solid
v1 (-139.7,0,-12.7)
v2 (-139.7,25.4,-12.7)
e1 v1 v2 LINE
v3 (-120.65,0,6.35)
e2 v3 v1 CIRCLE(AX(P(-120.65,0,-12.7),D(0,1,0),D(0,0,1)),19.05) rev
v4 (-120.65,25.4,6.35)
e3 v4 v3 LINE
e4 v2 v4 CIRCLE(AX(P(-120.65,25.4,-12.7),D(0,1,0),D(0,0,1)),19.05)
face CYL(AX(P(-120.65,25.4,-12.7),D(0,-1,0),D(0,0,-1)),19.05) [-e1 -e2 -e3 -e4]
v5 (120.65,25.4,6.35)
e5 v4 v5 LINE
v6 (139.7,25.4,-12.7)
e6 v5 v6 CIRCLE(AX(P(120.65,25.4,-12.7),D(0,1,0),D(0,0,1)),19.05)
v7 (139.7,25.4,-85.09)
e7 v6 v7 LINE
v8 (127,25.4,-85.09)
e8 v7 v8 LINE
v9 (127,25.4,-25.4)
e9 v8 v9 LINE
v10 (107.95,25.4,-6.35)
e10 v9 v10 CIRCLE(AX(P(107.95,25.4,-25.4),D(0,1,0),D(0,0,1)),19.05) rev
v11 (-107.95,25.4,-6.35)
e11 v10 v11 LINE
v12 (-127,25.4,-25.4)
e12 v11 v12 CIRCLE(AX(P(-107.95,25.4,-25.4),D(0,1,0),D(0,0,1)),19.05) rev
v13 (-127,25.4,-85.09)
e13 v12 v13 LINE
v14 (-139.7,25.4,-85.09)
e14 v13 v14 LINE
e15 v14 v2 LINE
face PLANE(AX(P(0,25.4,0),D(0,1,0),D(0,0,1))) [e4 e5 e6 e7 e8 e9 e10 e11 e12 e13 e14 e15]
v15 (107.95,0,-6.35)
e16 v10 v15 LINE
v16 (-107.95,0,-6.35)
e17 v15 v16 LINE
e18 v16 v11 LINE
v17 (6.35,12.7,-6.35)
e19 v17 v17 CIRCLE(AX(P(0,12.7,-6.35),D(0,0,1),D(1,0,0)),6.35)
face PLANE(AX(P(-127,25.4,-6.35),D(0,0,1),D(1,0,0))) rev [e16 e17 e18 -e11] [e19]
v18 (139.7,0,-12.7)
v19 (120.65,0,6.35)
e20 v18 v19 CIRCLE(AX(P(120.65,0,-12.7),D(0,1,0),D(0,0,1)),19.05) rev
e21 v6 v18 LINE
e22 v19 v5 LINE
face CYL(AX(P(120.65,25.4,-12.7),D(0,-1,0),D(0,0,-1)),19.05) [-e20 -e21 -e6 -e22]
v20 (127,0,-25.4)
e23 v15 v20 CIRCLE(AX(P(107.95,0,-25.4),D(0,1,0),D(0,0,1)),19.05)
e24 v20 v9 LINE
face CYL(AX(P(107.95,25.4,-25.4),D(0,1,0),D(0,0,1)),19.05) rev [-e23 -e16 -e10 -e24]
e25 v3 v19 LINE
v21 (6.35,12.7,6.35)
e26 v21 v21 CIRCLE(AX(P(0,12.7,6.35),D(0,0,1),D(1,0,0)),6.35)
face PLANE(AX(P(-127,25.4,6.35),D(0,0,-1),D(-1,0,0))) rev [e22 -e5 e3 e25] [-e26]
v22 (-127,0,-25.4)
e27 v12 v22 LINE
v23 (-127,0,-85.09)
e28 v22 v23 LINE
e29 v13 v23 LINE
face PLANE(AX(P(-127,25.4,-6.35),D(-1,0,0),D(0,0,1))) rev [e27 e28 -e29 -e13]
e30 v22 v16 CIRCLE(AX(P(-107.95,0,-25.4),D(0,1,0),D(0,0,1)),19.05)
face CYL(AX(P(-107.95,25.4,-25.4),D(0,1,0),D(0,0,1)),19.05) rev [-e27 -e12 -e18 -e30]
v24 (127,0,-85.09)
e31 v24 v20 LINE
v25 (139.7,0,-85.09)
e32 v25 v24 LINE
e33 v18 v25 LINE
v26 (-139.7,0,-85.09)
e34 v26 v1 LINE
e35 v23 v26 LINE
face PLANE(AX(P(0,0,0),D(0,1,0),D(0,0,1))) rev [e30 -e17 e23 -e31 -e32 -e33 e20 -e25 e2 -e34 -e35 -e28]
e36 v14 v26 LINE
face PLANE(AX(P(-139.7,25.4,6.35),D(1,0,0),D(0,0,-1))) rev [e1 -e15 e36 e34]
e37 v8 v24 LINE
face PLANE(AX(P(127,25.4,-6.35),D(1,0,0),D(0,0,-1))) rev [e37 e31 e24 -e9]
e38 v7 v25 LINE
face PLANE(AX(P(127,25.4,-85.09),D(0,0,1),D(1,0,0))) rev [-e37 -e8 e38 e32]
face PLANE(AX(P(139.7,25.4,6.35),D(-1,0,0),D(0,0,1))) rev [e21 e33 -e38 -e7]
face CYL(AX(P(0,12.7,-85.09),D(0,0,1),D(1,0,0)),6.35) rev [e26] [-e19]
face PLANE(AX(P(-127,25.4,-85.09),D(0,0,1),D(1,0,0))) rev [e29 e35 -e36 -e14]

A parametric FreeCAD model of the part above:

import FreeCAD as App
import Part
import Sketcher
Q = App.Units.Quantity


def edges_at(feature, points):
    """Names of the edges that pass closest to the given points."""
    edges = feature.Shape.Edges
    near = lambda p: min(range(len(edges)), key=lambda i: edges[i].distToShape(Part.Vertex(*p))[0])
    return sorted({f"Edge{near(p) + 1}" for p in points})


def add_polygon(sketch, points):
    """Adds a closed chain of lines whose ends are joined by coincident constraints."""
    first, n = sketch.GeometryCount, len(points)
    for a, b in zip(points, points[1:] + points[:1]):
        sketch.addGeometry(Part.LineSegment(App.Vector(*a, 0), App.Vector(*b, 0)), False)
    for i in range(n):
        sketch.addConstraint(Sketcher.Constraint("Coincident", first + i, 2, first + (i + 1) % n, 1))

doc = App.newDocument("Part")
params = doc.addObject("Spreadsheet::Sheet", "Params")
for row, (alias, value) in enumerate([
    ("sketch1_width", "10 in"),
    ("sketch1_width2", "11 in"),
    ("sketch1_height", "3.1 in"),
    ("sketch1_height2", "3.6 in"),
    ("pad1_length", "1 in"),
    ("sketch2_diameter", "0.5 in"),
    ("fillet_radius", "0.75 in"),
], start=1):
    params.set(f"A{row}", alias)
    params.set(f"B{row}", "=" + value)
    params.setAlias(f"B{row}", alias)

body = doc.addObject("PartDesign::Body", "Body")

sketch1 = doc.addObject("Sketcher::SketchObject", "Sketch")
body.addObject(sketch1)
sketch1.AttachmentSupport = (doc.XZ_Plane, [""])
sketch1.MapMode = "FlatFace"
add_polygon(sketch1, [(127, -6), (-127, -6), (-127, -85), (-140, -85), (-140, 6), (140, 6), (140, -85), (127, -85)])
sketch1.addConstraint([
    Sketcher.Constraint("Horizontal", 0),
    Sketcher.Constraint("Vertical", 1),
    Sketcher.Constraint("Horizontal", 2),
    Sketcher.Constraint("Vertical", 3),
    Sketcher.Constraint("Horizontal", 4),
    Sketcher.Constraint("Vertical", 5),
    Sketcher.Constraint("Horizontal", 6),
    Sketcher.Constraint("Vertical", 7),
    Sketcher.Constraint("Symmetric", 2, 2, 5, 2, -2),
    Sketcher.Constraint("Equal", 2, 6),
    Sketcher.Constraint("DistanceX", 0, 2, 0, 1, Q("10 in")),
    Sketcher.Constraint("DistanceX", 4, 1, 4, 2, Q("11 in")),
    Sketcher.Constraint("DistanceY", 1, 2, 1, 1, Q("3.1 in")),
    Sketcher.Constraint("DistanceY", 3, 1, 3, 2, Q("3.6 in")),
    Sketcher.Constraint("DistanceY", 0, 2, -1, 1, Q("0.25 in")),
])
sketch1.setExpression("Constraints[18]", "Params.sketch1_width")
sketch1.setExpression("Constraints[19]", "Params.sketch1_width2")
sketch1.setExpression("Constraints[20]", "Params.sketch1_height")
sketch1.setExpression("Constraints[21]", "Params.sketch1_height2")
pad1 = doc.addObject("PartDesign::Pad", "Pad")
body.addObject(pad1)
pad1.Profile = sketch1
pad1.setExpression("Length", "Params.pad1_length")
pad1.Reversed = True

sketch2 = doc.addObject("Sketcher::SketchObject", "Sketch001")
body.addObject(sketch2)
sketch2.AttachmentSupport = (doc.XY_Plane, [""])
sketch2.MapMode = "FlatFace"
sketch2.AttachmentOffset = App.Placement(App.Vector(0, 0, 0.25 * 25.4), App.Rotation())
sketch2.addGeometry(Part.Circle(App.Vector(0, 13, 0), App.Vector(0, 0, 1), 6), False)
sketch2.addConstraint([
    Sketcher.Constraint("PointOnObject", 0, 3, -2),
    Sketcher.Constraint("Diameter", 0, Q("0.5 in")),
    Sketcher.Constraint("DistanceY", -1, 1, 0, 3, Q("0.5 in")),
])
sketch2.setExpression("Constraints[1]", "Params.sketch2_diameter")
pocket1 = doc.addObject("PartDesign::Pocket", "Pocket")
body.addObject(pocket1)
pocket1.Profile = sketch2
pocket1.Type = "ThroughAll"
doc.recompute()

fillet = doc.addObject("PartDesign::Fillet", "Fillet")
body.addObject(fillet)
fillet.Base = (pocket1, edges_at(pocket1, [
    (-139.7, 12.7, 6.35),
    (-127, 12.7, -6.35),
    (127, 12.7, -6.35),
    (139.7, 12.7, 6.35),
]))
fillet.setExpression("Radius", "Params.fillet_radius")

doc.recompute()
